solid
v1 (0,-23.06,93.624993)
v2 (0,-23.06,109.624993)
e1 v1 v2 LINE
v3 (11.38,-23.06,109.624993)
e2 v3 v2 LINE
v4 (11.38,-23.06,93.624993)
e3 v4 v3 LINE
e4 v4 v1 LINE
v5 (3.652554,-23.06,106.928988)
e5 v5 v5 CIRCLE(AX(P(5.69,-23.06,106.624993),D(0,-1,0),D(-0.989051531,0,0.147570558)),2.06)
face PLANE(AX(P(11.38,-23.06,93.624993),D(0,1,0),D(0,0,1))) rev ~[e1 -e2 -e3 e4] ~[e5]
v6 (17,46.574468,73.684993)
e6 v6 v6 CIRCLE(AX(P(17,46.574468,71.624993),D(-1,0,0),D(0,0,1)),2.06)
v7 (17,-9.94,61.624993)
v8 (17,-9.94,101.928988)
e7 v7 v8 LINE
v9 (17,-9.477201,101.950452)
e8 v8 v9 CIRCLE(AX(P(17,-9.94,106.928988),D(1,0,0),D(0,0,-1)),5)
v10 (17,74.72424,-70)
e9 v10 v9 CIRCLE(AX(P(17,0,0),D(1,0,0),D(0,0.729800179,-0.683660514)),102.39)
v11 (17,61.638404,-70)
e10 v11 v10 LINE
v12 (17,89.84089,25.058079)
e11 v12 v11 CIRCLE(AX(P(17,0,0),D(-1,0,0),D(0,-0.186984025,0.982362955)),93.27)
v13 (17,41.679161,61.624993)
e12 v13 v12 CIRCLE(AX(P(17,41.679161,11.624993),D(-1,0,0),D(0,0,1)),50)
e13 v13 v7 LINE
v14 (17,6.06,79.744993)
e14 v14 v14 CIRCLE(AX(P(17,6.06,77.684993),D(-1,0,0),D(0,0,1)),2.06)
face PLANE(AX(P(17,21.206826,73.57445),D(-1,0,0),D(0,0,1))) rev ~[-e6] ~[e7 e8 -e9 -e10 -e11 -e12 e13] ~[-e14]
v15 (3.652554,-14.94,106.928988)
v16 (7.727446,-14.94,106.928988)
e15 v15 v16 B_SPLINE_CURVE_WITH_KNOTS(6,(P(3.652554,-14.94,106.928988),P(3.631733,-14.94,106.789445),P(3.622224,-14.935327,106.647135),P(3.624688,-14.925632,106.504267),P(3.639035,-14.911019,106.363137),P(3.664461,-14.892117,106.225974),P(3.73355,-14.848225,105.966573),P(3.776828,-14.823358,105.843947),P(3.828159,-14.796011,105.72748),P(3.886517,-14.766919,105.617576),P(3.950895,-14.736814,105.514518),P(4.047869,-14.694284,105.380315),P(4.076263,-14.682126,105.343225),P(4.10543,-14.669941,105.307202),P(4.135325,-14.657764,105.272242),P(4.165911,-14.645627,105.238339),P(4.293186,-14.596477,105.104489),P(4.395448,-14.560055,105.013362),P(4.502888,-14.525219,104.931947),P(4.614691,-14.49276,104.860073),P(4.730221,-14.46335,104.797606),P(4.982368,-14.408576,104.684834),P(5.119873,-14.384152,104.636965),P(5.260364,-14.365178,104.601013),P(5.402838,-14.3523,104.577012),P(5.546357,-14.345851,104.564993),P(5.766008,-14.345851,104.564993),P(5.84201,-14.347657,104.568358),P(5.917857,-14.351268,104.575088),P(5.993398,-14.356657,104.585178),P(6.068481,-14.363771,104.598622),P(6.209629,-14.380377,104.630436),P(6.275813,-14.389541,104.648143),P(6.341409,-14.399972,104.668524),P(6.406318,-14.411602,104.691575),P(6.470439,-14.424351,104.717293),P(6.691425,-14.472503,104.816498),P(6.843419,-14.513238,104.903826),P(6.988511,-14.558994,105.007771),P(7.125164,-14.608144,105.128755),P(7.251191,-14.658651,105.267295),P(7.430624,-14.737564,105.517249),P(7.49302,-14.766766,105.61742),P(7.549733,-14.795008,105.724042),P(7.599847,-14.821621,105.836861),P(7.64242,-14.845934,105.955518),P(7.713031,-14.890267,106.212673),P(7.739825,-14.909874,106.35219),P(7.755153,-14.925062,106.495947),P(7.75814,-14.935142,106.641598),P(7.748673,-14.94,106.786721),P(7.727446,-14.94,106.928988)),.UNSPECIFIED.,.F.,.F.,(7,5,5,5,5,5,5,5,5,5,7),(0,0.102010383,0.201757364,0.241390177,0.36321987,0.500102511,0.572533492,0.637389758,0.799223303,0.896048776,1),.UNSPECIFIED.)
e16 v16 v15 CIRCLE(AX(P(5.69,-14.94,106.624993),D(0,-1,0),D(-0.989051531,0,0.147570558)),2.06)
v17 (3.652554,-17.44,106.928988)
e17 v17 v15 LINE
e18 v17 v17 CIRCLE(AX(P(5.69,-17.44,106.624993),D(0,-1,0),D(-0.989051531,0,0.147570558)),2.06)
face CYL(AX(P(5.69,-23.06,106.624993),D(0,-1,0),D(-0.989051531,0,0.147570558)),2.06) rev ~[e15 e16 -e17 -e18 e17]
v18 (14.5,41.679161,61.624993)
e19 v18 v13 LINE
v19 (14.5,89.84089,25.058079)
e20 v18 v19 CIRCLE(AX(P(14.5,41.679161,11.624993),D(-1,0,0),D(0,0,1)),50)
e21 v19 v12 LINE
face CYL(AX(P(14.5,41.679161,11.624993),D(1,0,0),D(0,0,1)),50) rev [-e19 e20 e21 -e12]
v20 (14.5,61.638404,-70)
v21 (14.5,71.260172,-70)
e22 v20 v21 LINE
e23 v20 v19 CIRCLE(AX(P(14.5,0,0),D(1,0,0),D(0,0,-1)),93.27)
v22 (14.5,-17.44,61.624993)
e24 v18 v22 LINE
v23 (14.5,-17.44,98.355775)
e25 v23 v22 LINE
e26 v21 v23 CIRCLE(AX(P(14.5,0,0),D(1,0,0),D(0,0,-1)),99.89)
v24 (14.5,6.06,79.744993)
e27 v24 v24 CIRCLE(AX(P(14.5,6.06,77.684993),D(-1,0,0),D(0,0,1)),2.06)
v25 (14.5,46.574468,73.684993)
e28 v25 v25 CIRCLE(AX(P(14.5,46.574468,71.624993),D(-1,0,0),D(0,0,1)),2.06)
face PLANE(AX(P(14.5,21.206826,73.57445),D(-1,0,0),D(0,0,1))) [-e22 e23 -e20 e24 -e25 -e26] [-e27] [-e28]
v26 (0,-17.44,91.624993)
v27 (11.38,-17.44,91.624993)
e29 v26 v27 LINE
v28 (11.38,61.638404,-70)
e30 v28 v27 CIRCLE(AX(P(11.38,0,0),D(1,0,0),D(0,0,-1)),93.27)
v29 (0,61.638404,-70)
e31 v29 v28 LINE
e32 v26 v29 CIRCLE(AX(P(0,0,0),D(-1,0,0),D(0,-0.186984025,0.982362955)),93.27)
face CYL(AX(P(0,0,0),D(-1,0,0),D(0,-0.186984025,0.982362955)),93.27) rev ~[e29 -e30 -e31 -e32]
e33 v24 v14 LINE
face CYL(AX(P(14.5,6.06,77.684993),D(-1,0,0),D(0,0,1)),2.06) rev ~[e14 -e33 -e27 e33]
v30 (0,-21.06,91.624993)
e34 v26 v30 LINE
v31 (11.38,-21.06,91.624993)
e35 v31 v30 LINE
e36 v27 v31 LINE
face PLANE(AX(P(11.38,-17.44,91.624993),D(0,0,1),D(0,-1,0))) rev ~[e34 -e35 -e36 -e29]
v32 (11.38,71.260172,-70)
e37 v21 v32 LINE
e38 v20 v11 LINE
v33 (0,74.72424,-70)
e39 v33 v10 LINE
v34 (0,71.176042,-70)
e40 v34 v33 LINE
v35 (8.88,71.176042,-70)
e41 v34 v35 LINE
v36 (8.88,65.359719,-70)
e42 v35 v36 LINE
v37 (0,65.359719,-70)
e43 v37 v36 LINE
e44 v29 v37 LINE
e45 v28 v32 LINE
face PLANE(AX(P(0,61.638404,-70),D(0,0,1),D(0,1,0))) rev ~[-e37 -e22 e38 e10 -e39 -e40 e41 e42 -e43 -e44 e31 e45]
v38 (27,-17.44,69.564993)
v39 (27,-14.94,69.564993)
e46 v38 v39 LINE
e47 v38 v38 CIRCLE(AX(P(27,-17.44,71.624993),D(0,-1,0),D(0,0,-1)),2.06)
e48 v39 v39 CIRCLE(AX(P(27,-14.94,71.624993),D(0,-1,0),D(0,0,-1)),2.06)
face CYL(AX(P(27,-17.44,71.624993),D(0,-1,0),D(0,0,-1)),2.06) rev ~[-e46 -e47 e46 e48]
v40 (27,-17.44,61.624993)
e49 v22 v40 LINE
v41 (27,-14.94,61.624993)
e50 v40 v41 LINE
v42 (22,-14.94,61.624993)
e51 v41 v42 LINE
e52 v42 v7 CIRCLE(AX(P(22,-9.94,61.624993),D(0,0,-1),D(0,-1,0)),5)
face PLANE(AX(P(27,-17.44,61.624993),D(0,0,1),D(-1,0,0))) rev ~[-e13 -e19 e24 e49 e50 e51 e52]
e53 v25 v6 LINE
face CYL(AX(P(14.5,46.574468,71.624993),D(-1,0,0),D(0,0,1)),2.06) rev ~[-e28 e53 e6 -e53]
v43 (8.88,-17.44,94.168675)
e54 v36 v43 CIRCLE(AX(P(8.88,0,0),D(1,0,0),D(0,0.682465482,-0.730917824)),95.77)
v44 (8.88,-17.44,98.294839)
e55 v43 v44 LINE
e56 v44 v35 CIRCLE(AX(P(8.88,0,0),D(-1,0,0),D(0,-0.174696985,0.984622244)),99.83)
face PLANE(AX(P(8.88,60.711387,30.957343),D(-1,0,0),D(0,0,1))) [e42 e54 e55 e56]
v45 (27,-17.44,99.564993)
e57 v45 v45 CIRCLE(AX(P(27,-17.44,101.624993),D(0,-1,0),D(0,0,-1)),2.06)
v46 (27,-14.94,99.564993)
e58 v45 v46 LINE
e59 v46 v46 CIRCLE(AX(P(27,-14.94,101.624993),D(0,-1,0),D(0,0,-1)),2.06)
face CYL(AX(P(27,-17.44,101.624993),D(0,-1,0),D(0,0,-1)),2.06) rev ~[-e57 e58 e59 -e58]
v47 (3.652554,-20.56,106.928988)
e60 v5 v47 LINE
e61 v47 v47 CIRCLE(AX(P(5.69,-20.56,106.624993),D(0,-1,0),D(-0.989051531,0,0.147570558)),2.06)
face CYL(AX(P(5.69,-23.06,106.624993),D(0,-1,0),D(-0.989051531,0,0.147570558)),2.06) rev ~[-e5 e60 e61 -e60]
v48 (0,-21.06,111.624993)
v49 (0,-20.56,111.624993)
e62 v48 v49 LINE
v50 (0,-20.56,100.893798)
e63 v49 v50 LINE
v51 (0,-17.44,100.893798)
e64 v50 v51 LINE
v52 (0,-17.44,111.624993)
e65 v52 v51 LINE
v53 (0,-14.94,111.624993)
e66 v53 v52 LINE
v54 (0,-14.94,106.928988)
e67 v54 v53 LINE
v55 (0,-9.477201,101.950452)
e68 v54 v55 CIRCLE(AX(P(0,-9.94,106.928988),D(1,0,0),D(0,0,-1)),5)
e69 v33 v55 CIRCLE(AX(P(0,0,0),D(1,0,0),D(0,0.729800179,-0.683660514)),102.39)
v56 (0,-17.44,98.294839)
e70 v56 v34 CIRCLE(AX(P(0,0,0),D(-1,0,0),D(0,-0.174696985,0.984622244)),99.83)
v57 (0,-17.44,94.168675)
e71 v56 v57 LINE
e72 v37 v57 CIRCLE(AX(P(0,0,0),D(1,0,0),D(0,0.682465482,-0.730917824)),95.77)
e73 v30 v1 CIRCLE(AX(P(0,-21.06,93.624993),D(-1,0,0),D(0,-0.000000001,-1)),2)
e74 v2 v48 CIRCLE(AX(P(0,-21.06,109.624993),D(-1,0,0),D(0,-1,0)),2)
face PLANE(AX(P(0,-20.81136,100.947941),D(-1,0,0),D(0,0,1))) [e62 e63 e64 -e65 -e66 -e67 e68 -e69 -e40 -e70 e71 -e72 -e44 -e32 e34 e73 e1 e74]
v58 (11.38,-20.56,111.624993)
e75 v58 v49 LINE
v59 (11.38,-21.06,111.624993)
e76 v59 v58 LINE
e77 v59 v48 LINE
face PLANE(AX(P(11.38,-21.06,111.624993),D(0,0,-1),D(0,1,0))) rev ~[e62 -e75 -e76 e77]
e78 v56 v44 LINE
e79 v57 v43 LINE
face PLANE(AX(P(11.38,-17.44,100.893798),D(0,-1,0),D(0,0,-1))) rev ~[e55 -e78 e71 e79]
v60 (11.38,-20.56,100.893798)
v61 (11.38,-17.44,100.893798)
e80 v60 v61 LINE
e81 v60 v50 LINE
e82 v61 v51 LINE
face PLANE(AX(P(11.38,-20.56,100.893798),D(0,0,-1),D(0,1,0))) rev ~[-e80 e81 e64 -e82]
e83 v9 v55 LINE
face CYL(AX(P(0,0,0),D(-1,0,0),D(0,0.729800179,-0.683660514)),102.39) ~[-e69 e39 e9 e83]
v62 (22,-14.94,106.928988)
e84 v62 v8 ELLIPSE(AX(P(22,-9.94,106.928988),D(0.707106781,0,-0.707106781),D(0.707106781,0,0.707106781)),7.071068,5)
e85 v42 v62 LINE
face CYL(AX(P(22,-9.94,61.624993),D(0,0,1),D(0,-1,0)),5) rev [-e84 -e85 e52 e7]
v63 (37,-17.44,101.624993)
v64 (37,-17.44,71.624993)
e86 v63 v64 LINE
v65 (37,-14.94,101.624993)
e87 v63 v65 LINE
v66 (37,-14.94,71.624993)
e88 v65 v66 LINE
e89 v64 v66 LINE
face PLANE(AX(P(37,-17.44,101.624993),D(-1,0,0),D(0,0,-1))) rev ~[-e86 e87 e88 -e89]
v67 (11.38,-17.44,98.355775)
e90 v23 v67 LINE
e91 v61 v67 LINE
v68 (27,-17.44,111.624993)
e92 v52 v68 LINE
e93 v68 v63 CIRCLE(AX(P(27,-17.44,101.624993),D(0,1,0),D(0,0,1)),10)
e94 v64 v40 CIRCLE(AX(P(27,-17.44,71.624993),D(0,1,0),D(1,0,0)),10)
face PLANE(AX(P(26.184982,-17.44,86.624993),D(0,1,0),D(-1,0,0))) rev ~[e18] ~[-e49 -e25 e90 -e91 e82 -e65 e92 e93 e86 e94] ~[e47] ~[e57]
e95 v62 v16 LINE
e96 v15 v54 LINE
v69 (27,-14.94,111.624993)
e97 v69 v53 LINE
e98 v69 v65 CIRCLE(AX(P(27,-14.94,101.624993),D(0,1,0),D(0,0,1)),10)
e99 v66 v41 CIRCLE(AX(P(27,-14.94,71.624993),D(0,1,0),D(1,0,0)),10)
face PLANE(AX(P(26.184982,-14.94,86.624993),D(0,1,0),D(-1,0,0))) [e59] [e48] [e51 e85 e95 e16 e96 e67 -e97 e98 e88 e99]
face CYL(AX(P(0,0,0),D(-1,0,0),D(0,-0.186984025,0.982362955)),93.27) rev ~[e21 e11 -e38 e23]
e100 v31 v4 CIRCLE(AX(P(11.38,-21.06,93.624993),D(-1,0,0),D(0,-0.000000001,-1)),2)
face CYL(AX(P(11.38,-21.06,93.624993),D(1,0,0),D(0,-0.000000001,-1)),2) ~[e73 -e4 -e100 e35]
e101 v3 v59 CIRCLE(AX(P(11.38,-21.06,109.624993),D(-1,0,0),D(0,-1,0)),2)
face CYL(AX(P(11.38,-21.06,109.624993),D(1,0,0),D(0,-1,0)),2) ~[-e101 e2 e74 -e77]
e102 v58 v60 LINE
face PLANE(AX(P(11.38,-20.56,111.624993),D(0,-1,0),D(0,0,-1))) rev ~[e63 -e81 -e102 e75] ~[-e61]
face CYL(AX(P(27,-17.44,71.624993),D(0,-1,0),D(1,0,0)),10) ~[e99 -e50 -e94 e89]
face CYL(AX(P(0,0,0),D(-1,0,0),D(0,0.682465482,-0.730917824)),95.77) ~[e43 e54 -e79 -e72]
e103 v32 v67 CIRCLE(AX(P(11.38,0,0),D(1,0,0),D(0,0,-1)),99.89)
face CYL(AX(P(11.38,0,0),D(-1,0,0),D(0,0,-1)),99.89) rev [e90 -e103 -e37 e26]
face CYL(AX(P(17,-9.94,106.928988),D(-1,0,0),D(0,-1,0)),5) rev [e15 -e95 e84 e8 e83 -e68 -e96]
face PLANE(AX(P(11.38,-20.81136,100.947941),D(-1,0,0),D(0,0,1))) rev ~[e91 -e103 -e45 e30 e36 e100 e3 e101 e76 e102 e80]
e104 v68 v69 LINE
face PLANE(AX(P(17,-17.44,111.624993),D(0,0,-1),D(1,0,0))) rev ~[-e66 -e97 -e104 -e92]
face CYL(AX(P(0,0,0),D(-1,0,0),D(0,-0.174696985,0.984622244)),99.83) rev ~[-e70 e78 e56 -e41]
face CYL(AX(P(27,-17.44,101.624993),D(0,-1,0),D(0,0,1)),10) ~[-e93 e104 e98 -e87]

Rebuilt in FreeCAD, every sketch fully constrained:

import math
import FreeCAD as App
import Part
import Sketcher

V = App.Vector


def edges_at(feature, points):
    """Names of the edges that pass closest to the given points."""
    edges = feature.Shape.Edges
    near = lambda p: min(range(len(edges)), key=lambda i: edges[i].distToShape(Part.Vertex(*p))[0])
    return sorted({f"Edge{near(p) + 1}" for p in points})

doc = App.newDocument("Part")
body = doc.addObject("PartDesign::Body", "Body")

# Sketch on YZ plane
sketch1 = body.newObject("Sketcher::SketchObject", "Sketch")
sketch1.AttachmentSupport = (doc.getObject("YZ_Plane"), [""])
sketch1.MapMode = "FlatFace"
sketch1.addGeometry([
    Part.ArcOfCircle(Part.Circle(V(0, 0, 0), V(0, 0, 1), 102.39), math.radians(-43.130355), math.radians(99.806956)),
    Part.LineSegment(V(-17.44, 100.893798, 0), V(-17.44, 91.624993, 0)),
    Part.ArcOfCircle(Part.Circle(V(0, 0, 0), V(0, 0, 1), 93.27), math.radians(-48.634512), math.radians(100.776827)),
    Part.LineSegment(V(61.638404, -70, 0), V(74.72424, -70, 0)),
], False)
sketch1.addConstraint([
    Sketcher.Constraint("Coincident", 0, 2, 1, 1),
    Sketcher.Constraint("Coincident", 1, 2, 2, 2),
    Sketcher.Constraint("Coincident", 2, 1, 3, 1),
    Sketcher.Constraint("Coincident", 3, 2, 0, 1),
    Sketcher.Constraint("Vertical", 1),
    Sketcher.Constraint("Horizontal", 3),
    Sketcher.Constraint("Coincident", 0, 3, -1, 1),
    Sketcher.Constraint("Coincident", 2, 3, -1, 1),
    Sketcher.Constraint("Radius", 0, 102.39),
    Sketcher.Constraint("Radius", 2, 93.27),
    Sketcher.Constraint("DistanceY", 2, 1, -1, 1, 70.0),
    Sketcher.Constraint("DistanceX", 0, 2, -1, 1, 17.44),
])
pad1 = body.newObject("PartDesign::Pad", "Pad")
pad1.Profile = sketch1
pad1.Length = 17

# Sketch on YZ plane
sketch2 = body.newObject("Sketcher::SketchObject", "Sketch001")
sketch2.AttachmentSupport = (doc.getObject("YZ_Plane"), [""])
sketch2.MapMode = "FlatFace"
sketch2.addGeometry([
    Part.LineSegment(V(71.176042, -70, 0), V(65.359719, -70, 0)),
    Part.ArcOfCircle(Part.Circle(V(0, 0, 0), V(0, 0, 1), 95.77), math.radians(-46.963394), math.radians(100.492275)),
    Part.LineSegment(V(-17.44, 94.168675, 0), V(-17.44, 98.294839, 0)),
    Part.ArcOfCircle(Part.Circle(V(0, 0, 0), V(0, 0, 1), 99.83), math.radians(-44.522719), math.radians(100.061025)),
], False)
sketch2.addConstraint([
    Sketcher.Constraint("Coincident", 0, 2, 1, 1),
    Sketcher.Constraint("Coincident", 1, 2, 2, 1),
    Sketcher.Constraint("Coincident", 2, 2, 3, 2),
    Sketcher.Constraint("Coincident", 3, 1, 0, 1),
    Sketcher.Constraint("Horizontal", 0),
    Sketcher.Constraint("Vertical", 2),
    Sketcher.Constraint("Coincident", 1, 3, -1, 1),
    Sketcher.Constraint("Coincident", 3, 3, -1, 1),
    Sketcher.Constraint("Radius", 1, 95.77),
    Sketcher.Constraint("Radius", 3, 99.83),
    Sketcher.Constraint("DistanceY", 0, 2, -1, 1, 70.0),
    Sketcher.Constraint("DistanceX", 1, 2, -1, 1, 17.44),
])
pocket1 = body.newObject("PartDesign::Pocket", "Pocket")
pocket1.Profile = sketch2
pocket1.Length = 8.88
pocket1.Reversed = True

# Sketch on YZ plane
sketch3 = body.newObject("Sketcher::SketchObject", "Sketch002")
sketch3.AttachmentSupport = (doc.getObject("YZ_Plane"), [""])
sketch3.MapMode = "FlatFace"
sketch3.AttachmentOffset = App.Placement(V(0, 0, 11.38), App.Rotation())
sketch3.addGeometry([
    Part.Circle(V(0, 0, 0), V(0, 0, 1), 99.89),
    Part.Circle(V(0, 0, 0), V(0, 0, 1), 93.27),
], False)
sketch3.addConstraint([
    Sketcher.Constraint("Coincident", 0, 3, -1, 1),
    Sketcher.Constraint("Coincident", 1, 3, -1, 1),
    Sketcher.Constraint("Diameter", 0, 199.78),
    Sketcher.Constraint("Diameter", 1, 186.54),
])
pocket2 = body.newObject("PartDesign::Pocket", "Pocket001")
pocket2.Profile = sketch3
pocket2.Length = 3.12
pocket2.Reversed = True

# Sketch on YZ plane
sketch4 = body.newObject("Sketcher::SketchObject", "Sketch003")
sketch4.AttachmentSupport = (doc.getObject("YZ_Plane"), [""])
sketch4.MapMode = "FlatFace"
sketch4.AttachmentOffset = App.Placement(V(0, 0, 17), App.Rotation())
sketch4.addGeometry([
    Part.LineSegment(V(-14.94, 111.624993, 0), V(-17.44, 111.624993, 0)),
    Part.LineSegment(V(-17.44, 111.624993, 0), V(-17.44, 100.893798, 0)),
    Part.ArcOfCircle(Part.Circle(V(0.000001, -0.000007, 0), V(0, 0, 1), 102.390007), math.radians(98.390134), math.radians(99.806956)),
    Part.LineSegment(V(-14.94, 101.294168, 0), V(-14.94, 111.624993, 0)),
], False)
sketch4.addConstraint([
    Sketcher.Constraint("Coincident", 0, 2, 1, 1),
    Sketcher.Constraint("Coincident", 1, 2, 2, 2),
    Sketcher.Constraint("Coincident", 2, 1, 3, 1),
    Sketcher.Constraint("Coincident", 3, 2, 0, 1),
    Sketcher.Constraint("Horizontal", 0),
    Sketcher.Constraint("Vertical", 1),
    Sketcher.Constraint("Vertical", 3),
    Sketcher.Constraint("Coincident", 2, 3, -1, 1),
    Sketcher.Constraint("DistanceX", 0, 2, 0, 1, 2.5),
    Sketcher.Constraint("DistanceX", 0, 2, -1, 1, 17.44),
    Sketcher.Constraint("Radius", 2, 102.390007),
    Sketcher.Constraint("DistanceY", 2, 3, 0, 2, 111.625),
])
pad2 = body.newObject("PartDesign::Pad", "Pad001")
pad2.Profile = sketch4
pad2.Length = 17
pad2.Reversed = True

# Sketch on YZ plane
sketch5 = body.newObject("Sketcher::SketchObject", "Sketch004")
sketch5.AttachmentSupport = (doc.getObject("YZ_Plane"), [""])
sketch5.MapMode = "FlatFace"
sketch5.AttachmentOffset = App.Placement(V(0, 0, 11.38), App.Rotation())
sketch5.addGeometry([
    Part.LineSegment(V(-21.06, 91.624993, 0), V(-17.44, 91.624993, 0)),  # 0
    Part.LineSegment(V(-17.44, 91.624993, 0), V(-17.44, 100.893798, 0)),  # 1
    Part.LineSegment(V(-17.44, 100.893798, 0), V(-20.56, 100.893798, 0)),  # 2
    Part.LineSegment(V(-20.56, 100.893798, 0), V(-20.56, 111.624993, 0)),  # 3
    Part.LineSegment(V(-20.56, 111.624993, 0), V(-21.06, 111.624993, 0)),  # 4
    Part.ArcOfCircle(Part.Circle(V(-21.06, 109.624993, 0), V(0, 0, 1), 2), math.radians(90), math.radians(180)),  # 5
    Part.LineSegment(V(-23.06, 109.624993, 0), V(-23.06, 93.624993, 0)),  # 6
    Part.ArcOfCircle(Part.Circle(V(-21.06, 93.624993, 0), V(0, 0, 1), 2), math.radians(-180), math.radians(-90)),  # 7
], False)
sketch5.addConstraint([
    Sketcher.Constraint("Coincident", 0, 2, 1, 1),
    Sketcher.Constraint("Coincident", 1, 2, 2, 1),
    Sketcher.Constraint("Coincident", 2, 2, 3, 1),
    Sketcher.Constraint("Coincident", 3, 2, 4, 1),
    Sketcher.Constraint("Tangent", 4, 2, 5, 1),
    Sketcher.Constraint("Tangent", 5, 2, 6, 1),
    Sketcher.Constraint("Tangent", 6, 2, 7, 1),
    Sketcher.Constraint("Tangent", 7, 2, 0, 1),
    Sketcher.Constraint("Horizontal", 0),
    Sketcher.Constraint("Vertical", 1),
    Sketcher.Constraint("Horizontal", 2),
    Sketcher.Constraint("Vertical", 3),
    Sketcher.Constraint("Horizontal", 4),
    Sketcher.Constraint("Vertical", 6),
    Sketcher.Constraint("Equal", 5, 7),
    Sketcher.Constraint("Radius", 5, 2.0),
    Sketcher.Constraint("DistanceY", 6, 2, 6, 1, 16.0),
    Sketcher.Constraint("DistanceX", 4, 2, 4, 1, 0.5),
    Sketcher.Constraint("DistanceX", 0, 1, 0, 2, 3.62),
    Sketcher.Constraint("DistanceX", 5, 3, -1, 1, 21.06),
    Sketcher.Constraint("DistanceY", -1, 1, 1, 2, 100.893798),
    Sketcher.Constraint("DistanceY", 1, 1, 1, 2, 9.268805),
])
pad3 = body.newObject("PartDesign::Pad", "Pad002")
pad3.Profile = sketch5
pad3.Length = 11.38
pad3.Reversed = True

# Sketch on YZ plane
sketch6 = body.newObject("Sketcher::SketchObject", "Sketch005")
sketch6.AttachmentSupport = (doc.getObject("YZ_Plane"), [""])
sketch6.MapMode = "FlatFace"
sketch6.AttachmentOffset = App.Placement(V(0, 0, 14.5), App.Rotation())
sketch6.addGeometry([
    Part.LineSegment(V(-17.44, 61.624993, 0), V(70.011807, 61.624993, 0)),
    Part.ArcOfCircle(Part.Circle(V(0, 0, 0), V(0, 0, 1), 93.27), math.radians(41.354511), math.radians(100.776827)),
    Part.LineSegment(V(-17.44, 91.624993, 0), V(-17.44, 61.624993, 0)),
], False)
sketch6.addConstraint([
    Sketcher.Constraint("Coincident", 0, 2, 1, 1),
    Sketcher.Constraint("Coincident", 1, 2, 2, 1),
    Sketcher.Constraint("Coincident", 2, 2, 0, 1),
    Sketcher.Constraint("Horizontal", 0),
    Sketcher.Constraint("Vertical", 2),
    Sketcher.Constraint("Coincident", 1, 3, -1, 1),
    Sketcher.Constraint("DistanceY", 2, 2, 2, 1, 30.0),
    Sketcher.Constraint("Radius", 1, 93.27),
    Sketcher.Constraint("DistanceX", 1, 2, -1, 1, 17.44),
])
pad4 = body.newObject("PartDesign::Pad", "Pad003")
pad4.Profile = sketch6
pad4.Length = 2.5
doc.recompute()

fillet = body.newObject("PartDesign::Fillet", "Fillet")
fillet.Base = (pad4, edges_at(pad4, [(15.75, 70.012, 61.625)]))
fillet.Radius = 50

# Sketch on XZ plane
sketch7 = body.newObject("Sketcher::SketchObject", "Sketch006")
sketch7.AttachmentSupport = (doc.getObject("XZ_Plane"), [""])
sketch7.MapMode = "FlatFace"
sketch7.AttachmentOffset = App.Placement(V(0, 0, 17.44), App.Rotation())
sketch7.addGeometry([
    Part.LineSegment(V(27, 111.624993, 0), V(17, 111.624993, 0)),  # 0
    Part.LineSegment(V(17, 111.624993, 0), V(17, 61.624993, 0)),  # 1
    Part.LineSegment(V(17, 61.624993, 0), V(27, 61.624993, 0)),  # 2
    Part.ArcOfCircle(Part.Circle(V(27, 71.624993, 0), V(0, 0, 1), 10), math.radians(-90), math.radians(0)),  # 3
    Part.LineSegment(V(37, 71.624993, 0), V(37, 101.624993, 0)),  # 4
    Part.ArcOfCircle(Part.Circle(V(27, 101.624993, 0), V(0, 0, 1), 10), math.radians(0), math.radians(90)),  # 5
    Part.Circle(V(27, 71.624993, 0), V(0, 0, 1), 2.06),  # 6
    Part.Circle(V(27, 101.624993, 0), V(0, 0, 1), 2.06),  # 7
], False)
sketch7.addConstraint([
    Sketcher.Constraint("Coincident", 0, 2, 1, 1),
    Sketcher.Constraint("Coincident", 1, 2, 2, 1),
    Sketcher.Constraint("Tangent", 2, 2, 3, 1),
    Sketcher.Constraint("Tangent", 3, 2, 4, 1),
    Sketcher.Constraint("Tangent", 4, 2, 5, 1),
    Sketcher.Constraint("Tangent", 5, 2, 0, 1),
    Sketcher.Constraint("Horizontal", 0),
    Sketcher.Constraint("Vertical", 1),
    Sketcher.Constraint("Horizontal", 2),
    Sketcher.Constraint("Vertical", 4),
    Sketcher.Constraint("Coincident", 6, 3, 3, 3),
    Sketcher.Constraint("Coincident", 7, 3, 5, 3),
    Sketcher.Constraint("Equal", 3, 5),
    Sketcher.Constraint("Equal", 6, 7),
    Sketcher.Constraint("Radius", 3, 10.0),
    Sketcher.Constraint("Diameter", 6, 4.12),
    Sketcher.Constraint("DistanceX", 0, 2, 0, 1, 10.0),
    Sketcher.Constraint("DistanceY", 1, 2, 1, 1, 50.0),
    Sketcher.Constraint("DistanceX", -1, 1, 3, 3, 27.0),
    Sketcher.Constraint("DistanceY", -1, 1, 3, 3, 71.624993),
])
pad5 = body.newObject("PartDesign::Pad", "Pad004")
pad5.Profile = sketch7
pad5.Length = 2.5
pad5.Reversed = True
doc.recompute()

fillet2 = body.newObject("PartDesign::Fillet", "Fillet001")
fillet2.Base = (pad5, edges_at(pad5, [(17, -14.94, 81.46), (8.5, -14.94, 101.294)]))
fillet2.Radius = 5

# Sketch on XZ plane
sketch8 = body.newObject("Sketcher::SketchObject", "Sketch007")
sketch8.AttachmentSupport = (doc.getObject("XZ_Plane"), [""])
sketch8.MapMode = "FlatFace"
sketch8.AttachmentOffset = App.Placement(V(0, 0, 23.06), App.Rotation())
sketch8.addGeometry(Part.Circle(V(5.69, 106.624993, 0), V(0, 0, 1), 2.06), False)
sketch8.addConstraint([
    Sketcher.Constraint("Diameter", 0, 4.12),
    Sketcher.Constraint("DistanceX", -1, 1, 0, 3, 5.69),
    Sketcher.Constraint("DistanceY", -1, 1, 0, 3, 106.624993),
])
pocket3 = body.newObject("PartDesign::Pocket", "Pocket002")
pocket3.Profile = sketch8
pocket3.Type = "ThroughAll"

# Sketch on YZ plane
sketch9 = body.newObject("Sketcher::SketchObject", "Sketch008")
sketch9.AttachmentSupport = (doc.getObject("YZ_Plane"), [""])
sketch9.MapMode = "FlatFace"
sketch9.AttachmentOffset = App.Placement(V(0, 0, 14.5), App.Rotation())
sketch9.addGeometry([
    Part.Circle(V(6.06, 77.684993, 0), V(0, 0, 1), 2.06),
    Part.Circle(V(46.574468, 71.624993, 0), V(0, 0, 1), 2.06),
], False)
sketch9.addConstraint([
    Sketcher.Constraint("Equal", 0, 1),
    Sketcher.Constraint("Diameter", 0, 4.12),
    Sketcher.Constraint("DistanceX", -1, 1, 0, 3, 6.06),
    Sketcher.Constraint("DistanceY", 1, 3, 0, 3, 6.06),
    Sketcher.Constraint("DistanceX", -1, 1, 1, 3, 46.574468),
    Sketcher.Constraint("DistanceY", -1, 1, 0, 3, 77.684993),
])
pocket4 = body.newObject("PartDesign::Pocket", "Pocket003")
pocket4.Profile = sketch9
pocket4.Type = "ThroughAll"
pocket4.Reversed = True

doc.recompute()
